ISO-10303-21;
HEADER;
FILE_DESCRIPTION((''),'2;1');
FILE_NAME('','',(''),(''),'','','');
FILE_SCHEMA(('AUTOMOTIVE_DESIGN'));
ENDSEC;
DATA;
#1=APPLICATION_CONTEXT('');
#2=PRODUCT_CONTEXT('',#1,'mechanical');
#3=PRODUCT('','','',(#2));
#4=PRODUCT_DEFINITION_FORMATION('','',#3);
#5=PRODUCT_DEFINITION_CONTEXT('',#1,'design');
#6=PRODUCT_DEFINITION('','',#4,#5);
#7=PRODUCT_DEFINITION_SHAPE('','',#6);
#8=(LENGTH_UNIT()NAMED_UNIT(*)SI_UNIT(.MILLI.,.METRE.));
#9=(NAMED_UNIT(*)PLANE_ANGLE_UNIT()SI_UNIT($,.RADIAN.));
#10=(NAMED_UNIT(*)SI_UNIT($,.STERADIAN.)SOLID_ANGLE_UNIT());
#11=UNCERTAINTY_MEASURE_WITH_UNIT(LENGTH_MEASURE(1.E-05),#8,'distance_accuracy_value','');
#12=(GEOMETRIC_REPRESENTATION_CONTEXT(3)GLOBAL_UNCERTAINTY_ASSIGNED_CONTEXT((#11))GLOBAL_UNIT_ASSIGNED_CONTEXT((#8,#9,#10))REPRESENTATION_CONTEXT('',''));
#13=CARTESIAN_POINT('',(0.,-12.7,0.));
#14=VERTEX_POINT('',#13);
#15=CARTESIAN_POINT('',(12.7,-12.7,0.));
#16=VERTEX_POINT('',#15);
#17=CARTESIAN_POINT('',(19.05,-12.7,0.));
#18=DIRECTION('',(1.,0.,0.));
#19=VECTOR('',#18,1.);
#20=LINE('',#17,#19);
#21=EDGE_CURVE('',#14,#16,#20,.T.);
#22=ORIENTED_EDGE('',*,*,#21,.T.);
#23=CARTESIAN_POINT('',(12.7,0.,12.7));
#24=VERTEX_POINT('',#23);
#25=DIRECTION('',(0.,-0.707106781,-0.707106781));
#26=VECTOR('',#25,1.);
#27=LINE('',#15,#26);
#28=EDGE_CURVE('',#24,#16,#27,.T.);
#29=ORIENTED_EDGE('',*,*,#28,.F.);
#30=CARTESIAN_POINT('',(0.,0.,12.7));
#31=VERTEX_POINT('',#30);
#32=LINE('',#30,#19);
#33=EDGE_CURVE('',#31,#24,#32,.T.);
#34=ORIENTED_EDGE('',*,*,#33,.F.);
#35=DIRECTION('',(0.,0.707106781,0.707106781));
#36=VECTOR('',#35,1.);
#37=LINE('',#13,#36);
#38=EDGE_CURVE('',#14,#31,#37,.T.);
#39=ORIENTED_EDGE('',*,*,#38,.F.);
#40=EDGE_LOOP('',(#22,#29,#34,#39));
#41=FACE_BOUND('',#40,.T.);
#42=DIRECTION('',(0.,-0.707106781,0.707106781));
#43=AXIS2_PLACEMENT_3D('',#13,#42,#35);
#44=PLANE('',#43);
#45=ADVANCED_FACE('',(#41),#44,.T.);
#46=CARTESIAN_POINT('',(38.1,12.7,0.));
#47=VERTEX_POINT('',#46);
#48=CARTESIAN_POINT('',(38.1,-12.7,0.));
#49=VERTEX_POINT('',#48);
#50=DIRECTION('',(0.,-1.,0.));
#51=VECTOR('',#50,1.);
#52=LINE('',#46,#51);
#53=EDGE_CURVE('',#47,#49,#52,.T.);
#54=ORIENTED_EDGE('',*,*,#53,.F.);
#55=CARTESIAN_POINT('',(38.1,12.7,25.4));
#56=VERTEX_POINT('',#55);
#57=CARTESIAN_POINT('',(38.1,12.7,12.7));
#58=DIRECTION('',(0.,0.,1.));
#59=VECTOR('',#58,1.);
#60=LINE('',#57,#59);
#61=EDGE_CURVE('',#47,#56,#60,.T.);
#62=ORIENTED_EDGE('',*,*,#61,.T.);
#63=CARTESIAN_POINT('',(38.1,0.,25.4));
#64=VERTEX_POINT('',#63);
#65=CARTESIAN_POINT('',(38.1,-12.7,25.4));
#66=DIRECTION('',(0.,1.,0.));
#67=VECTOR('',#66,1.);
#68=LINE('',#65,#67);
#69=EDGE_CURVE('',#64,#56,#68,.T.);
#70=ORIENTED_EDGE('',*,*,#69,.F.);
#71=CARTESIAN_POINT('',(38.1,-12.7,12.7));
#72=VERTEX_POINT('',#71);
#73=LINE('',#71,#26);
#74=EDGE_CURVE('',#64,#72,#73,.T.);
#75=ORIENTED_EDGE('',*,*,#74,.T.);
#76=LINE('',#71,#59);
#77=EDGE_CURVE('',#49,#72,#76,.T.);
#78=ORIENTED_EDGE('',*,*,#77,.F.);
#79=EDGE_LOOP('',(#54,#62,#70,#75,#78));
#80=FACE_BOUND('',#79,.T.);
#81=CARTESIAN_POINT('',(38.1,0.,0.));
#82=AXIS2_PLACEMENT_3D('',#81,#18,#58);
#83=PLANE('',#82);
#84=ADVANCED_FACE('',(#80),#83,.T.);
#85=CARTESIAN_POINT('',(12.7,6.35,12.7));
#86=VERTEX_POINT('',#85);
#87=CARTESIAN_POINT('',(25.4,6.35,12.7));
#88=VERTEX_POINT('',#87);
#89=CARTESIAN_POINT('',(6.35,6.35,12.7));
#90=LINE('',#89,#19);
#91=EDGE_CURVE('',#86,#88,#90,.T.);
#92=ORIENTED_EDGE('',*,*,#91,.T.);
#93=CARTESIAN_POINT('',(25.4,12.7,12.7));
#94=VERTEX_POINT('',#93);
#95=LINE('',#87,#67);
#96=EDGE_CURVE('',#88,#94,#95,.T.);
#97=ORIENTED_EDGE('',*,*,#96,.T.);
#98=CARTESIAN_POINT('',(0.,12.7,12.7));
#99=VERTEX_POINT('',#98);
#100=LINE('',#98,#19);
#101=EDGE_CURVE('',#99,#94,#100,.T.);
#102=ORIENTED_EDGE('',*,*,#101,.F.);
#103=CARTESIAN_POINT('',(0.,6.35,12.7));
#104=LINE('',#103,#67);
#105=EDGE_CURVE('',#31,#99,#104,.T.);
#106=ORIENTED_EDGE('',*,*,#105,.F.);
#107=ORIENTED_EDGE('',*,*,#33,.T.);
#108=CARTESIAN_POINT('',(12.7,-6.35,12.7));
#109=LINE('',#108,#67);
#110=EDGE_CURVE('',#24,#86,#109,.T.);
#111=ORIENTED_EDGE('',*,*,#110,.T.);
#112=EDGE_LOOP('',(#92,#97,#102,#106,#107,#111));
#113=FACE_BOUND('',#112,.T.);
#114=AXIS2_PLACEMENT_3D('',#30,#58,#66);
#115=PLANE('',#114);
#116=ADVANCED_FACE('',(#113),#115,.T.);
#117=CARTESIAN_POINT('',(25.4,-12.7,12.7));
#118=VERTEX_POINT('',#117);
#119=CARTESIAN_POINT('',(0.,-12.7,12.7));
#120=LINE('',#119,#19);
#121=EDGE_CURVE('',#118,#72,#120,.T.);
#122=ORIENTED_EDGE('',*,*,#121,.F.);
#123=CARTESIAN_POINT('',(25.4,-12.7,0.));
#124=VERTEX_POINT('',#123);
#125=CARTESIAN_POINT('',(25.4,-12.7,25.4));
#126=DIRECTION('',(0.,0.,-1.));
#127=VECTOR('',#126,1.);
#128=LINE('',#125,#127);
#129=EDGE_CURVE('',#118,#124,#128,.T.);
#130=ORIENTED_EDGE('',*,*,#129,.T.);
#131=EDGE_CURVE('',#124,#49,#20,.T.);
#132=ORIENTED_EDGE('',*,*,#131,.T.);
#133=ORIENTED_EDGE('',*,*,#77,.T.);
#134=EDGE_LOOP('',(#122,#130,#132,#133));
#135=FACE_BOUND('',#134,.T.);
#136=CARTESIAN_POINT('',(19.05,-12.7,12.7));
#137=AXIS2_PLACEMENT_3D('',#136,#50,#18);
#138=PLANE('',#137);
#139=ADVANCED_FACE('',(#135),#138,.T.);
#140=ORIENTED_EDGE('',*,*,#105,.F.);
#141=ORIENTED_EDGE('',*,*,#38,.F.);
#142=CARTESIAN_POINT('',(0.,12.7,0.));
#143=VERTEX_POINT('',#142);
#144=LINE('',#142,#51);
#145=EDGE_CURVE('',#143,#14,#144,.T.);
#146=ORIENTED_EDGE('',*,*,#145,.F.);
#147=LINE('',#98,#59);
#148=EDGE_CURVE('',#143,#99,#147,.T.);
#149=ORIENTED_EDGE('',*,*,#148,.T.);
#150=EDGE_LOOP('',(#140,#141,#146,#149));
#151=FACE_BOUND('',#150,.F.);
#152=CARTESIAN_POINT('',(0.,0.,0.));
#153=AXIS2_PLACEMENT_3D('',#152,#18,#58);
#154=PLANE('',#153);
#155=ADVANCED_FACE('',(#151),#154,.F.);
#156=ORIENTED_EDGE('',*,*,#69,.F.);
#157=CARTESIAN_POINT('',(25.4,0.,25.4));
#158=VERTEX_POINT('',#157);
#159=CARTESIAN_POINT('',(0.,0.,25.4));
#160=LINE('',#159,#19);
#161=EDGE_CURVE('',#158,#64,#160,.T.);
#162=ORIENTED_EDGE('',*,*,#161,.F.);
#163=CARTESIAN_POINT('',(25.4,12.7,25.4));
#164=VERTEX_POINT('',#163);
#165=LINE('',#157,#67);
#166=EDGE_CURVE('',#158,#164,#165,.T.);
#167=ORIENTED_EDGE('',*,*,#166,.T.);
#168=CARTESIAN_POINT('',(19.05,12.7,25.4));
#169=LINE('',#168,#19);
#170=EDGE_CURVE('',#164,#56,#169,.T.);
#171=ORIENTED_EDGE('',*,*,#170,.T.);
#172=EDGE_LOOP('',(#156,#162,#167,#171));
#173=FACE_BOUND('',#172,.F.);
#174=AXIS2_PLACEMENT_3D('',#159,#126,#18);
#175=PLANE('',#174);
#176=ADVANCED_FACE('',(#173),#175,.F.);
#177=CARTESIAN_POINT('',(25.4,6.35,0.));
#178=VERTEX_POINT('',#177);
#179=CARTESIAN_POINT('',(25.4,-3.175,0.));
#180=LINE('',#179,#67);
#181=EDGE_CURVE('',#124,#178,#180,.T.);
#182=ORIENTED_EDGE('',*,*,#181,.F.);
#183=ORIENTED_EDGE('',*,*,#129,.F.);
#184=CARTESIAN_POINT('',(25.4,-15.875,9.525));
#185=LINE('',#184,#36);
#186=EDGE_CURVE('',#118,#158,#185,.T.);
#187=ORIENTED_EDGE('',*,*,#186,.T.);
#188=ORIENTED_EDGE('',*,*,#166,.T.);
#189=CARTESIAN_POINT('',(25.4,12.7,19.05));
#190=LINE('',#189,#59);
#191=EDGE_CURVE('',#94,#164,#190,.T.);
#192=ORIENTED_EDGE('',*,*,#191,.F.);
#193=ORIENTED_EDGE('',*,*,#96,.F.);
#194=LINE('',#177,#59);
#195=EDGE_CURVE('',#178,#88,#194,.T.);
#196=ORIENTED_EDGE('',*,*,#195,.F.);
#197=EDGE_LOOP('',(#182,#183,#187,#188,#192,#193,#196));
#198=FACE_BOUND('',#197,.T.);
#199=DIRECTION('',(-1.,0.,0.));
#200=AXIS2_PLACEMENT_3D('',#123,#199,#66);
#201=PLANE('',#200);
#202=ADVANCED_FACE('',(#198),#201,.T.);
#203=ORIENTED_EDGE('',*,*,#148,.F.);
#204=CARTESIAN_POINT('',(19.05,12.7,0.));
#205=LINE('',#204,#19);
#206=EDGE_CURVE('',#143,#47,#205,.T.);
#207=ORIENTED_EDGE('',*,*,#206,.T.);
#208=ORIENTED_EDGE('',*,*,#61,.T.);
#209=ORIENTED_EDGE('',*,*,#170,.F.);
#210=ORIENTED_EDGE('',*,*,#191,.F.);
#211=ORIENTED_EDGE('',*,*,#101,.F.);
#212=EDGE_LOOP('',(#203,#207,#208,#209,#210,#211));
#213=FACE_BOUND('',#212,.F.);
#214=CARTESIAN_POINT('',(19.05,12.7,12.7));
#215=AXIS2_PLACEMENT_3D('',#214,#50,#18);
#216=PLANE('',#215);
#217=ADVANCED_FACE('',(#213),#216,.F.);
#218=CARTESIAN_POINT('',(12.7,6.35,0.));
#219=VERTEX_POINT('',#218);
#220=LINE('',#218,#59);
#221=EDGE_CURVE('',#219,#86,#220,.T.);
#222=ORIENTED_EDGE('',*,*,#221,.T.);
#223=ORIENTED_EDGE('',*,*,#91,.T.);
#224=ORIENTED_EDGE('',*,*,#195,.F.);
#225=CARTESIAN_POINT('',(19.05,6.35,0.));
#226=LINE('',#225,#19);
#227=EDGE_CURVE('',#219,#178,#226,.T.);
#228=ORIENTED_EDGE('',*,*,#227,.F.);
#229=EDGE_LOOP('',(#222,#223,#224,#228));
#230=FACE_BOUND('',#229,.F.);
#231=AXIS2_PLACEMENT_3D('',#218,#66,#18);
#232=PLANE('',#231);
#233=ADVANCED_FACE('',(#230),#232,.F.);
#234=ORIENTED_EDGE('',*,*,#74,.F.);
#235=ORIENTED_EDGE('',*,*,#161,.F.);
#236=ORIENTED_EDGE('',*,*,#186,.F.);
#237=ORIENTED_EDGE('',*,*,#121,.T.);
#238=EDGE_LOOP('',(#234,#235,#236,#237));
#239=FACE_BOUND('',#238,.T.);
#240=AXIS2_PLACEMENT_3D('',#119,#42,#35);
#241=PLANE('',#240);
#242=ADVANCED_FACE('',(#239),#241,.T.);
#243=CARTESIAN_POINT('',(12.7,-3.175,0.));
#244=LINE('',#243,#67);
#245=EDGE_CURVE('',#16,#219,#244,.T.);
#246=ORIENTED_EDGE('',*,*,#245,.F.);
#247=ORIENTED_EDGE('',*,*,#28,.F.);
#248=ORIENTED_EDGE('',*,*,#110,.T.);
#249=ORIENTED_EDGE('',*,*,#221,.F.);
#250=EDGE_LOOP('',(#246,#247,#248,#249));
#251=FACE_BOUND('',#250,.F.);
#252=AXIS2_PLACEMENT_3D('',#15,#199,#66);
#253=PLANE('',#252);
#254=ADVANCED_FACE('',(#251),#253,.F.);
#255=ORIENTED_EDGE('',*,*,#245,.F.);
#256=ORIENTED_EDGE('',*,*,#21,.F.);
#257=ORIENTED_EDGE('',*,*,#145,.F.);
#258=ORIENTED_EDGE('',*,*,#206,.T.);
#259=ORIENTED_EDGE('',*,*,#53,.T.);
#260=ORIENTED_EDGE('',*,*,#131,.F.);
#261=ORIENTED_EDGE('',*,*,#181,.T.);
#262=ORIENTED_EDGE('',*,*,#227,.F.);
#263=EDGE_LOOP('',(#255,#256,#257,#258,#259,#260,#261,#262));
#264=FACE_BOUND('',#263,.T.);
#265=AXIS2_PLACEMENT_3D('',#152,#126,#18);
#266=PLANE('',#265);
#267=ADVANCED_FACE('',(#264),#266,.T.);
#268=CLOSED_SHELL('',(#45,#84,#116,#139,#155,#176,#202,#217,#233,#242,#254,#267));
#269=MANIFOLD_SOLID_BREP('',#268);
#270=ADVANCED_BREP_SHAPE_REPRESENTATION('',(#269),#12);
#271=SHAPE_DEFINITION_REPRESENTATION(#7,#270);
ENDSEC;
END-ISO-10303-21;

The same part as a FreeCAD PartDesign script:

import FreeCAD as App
import Part
import Sketcher
from FreeCAD import Vector
Q = App.Units.Quantity

doc = App.newDocument("Part")
body = doc.addObject("PartDesign::Body", "Body")

# Sketch on XZ plane
sketch1 = body.newObject("Sketcher::SketchObject", "Sketch")
sketch1.AttachmentSupport = (doc.getObject("XZ_Plane"), [""])
sketch1.MapMode = "FlatFace"
sketch1.addGeometry([
    Part.LineSegment(Vector(0, 25, 0), Vector(0, 0, 0)),
    Part.LineSegment(Vector(0, 0, 0), Vector(38, 0, 0)),
    Part.LineSegment(Vector(38, 0, 0), Vector(38, 25, 0)),
    Part.LineSegment(Vector(38, 25, 0), Vector(0, 25, 0)),
], False)
sketch1.addConstraint([
    Sketcher.Constraint("Coincident", 0, 2, 1, 1),
    Sketcher.Constraint("Coincident", 1, 2, 2, 1),
    Sketcher.Constraint("Coincident", 2, 2, 3, 1),
    Sketcher.Constraint("Coincident", 3, 2, 0, 1),
    Sketcher.Constraint("Vertical", 0),
    Sketcher.Constraint("Horizontal", 1),
    Sketcher.Constraint("Vertical", 2),
    Sketcher.Constraint("Horizontal", 3),
    Sketcher.Constraint("Coincident", 0, 2, -1, 1),
    Sketcher.Constraint("DistanceY", 0, 2, 0, 1, Q("1 in")),
    Sketcher.Constraint("DistanceX", 1, 1, 1, 2, Q("1.5 in")),
])
pad1 = body.newObject("PartDesign::Pad", "Pad")
pad1.Profile = sketch1
pad1.Length = Q("1 in")
pad1.Midplane = True

# Sketch on YZ plane
sketch2 = body.newObject("Sketcher::SketchObject", "Sketch001")
sketch2.AttachmentSupport = (doc.getObject("YZ_Plane"), [""])
sketch2.MapMode = "FlatFace"
sketch2.addGeometry([
    Part.LineSegment(Vector(0, 13, 0), Vector(0, 25, 0)),
    Part.LineSegment(Vector(0, 25, 0), Vector(-13, 25, 0)),
    Part.LineSegment(Vector(-13, 25, 0), Vector(-13, 0, 0)),
    Part.LineSegment(Vector(-13, 0, 0), Vector(0, 13, 0)),
], False)
sketch2.addConstraint([
    Sketcher.Constraint("Coincident", 0, 2, 1, 1),
    Sketcher.Constraint("Coincident", 1, 2, 2, 1),
    Sketcher.Constraint("Coincident", 2, 2, 3, 1),
    Sketcher.Constraint("Coincident", 3, 2, 0, 1),
    Sketcher.Constraint("Vertical", 0),
    Sketcher.Constraint("Horizontal", 1),
    Sketcher.Constraint("Vertical", 2),
    Sketcher.Constraint("PointOnObject", 0, 2, -2),
    Sketcher.Constraint("PointOnObject", 2, 2, -1),
    Sketcher.Constraint("Equal", 1, 0),
    Sketcher.Constraint("DistanceY", 2, 2, 2, 1, Q("1 in")),
    Sketcher.Constraint("DistanceX", 1, 2, 1, 1, Q("0.5 in")),
])
pocket1 = body.newObject("PartDesign::Pocket", "Pocket")
pocket1.Profile = sketch2
pocket1.Length = Q("1 in")
pocket1.Reversed = True

# Sketch on XY plane
sketch3 = body.newObject("Sketcher::SketchObject", "Sketch002")
sketch3.AttachmentSupport = (doc.getObject("XY_Plane"), [""])
sketch3.MapMode = "FlatFace"
sketch3.addGeometry([
    Part.LineSegment(Vector(13, 6, 0), Vector(13, -13, 0)),
    Part.LineSegment(Vector(13, -13, 0), Vector(25, -13, 0)),
    Part.LineSegment(Vector(25, -13, 0), Vector(25, 6, 0)),
    Part.LineSegment(Vector(25, 6, 0), Vector(13, 6, 0)),
], False)
sketch3.addConstraint([
    Sketcher.Constraint("Coincident", 0, 2, 1, 1),
    Sketcher.Constraint("Coincident", 1, 2, 2, 1),
    Sketcher.Constraint("Coincident", 2, 2, 3, 1),
    Sketcher.Constraint("Coincident", 3, 2, 0, 1),
    Sketcher.Constraint("Vertical", 0),
    Sketcher.Constraint("Horizontal", 1),
    Sketcher.Constraint("Vertical", 2),
    Sketcher.Constraint("Horizontal", 3),
    Sketcher.Constraint("DistanceX", 1, 1, 1, 2, Q("0.5 in")),
    Sketcher.Constraint("DistanceX", -1, 1, 1, 2, Q("1 in")),
    Sketcher.Constraint("DistanceY", 0, 2, 0, 1, Q("0.75 in")),
    Sketcher.Constraint("DistanceY", 0, 2, -1, 1, Q("0.5 in")),
])
pocket2 = body.newObject("PartDesign::Pocket", "Pocket001")
pocket2.Profile = sketch3
pocket2.Length = Q("1.83 in")
pocket2.Reversed = True

# Sketch on YZ plane
sketch4 = body.newObject("Sketcher::SketchObject", "Sketch003")
sketch4.AttachmentSupport = (doc.getObject("YZ_Plane"), [""])
sketch4.MapMode = "FlatFace"
sketch4.addGeometry([
    Part.LineSegment(Vector(-13, 13, 0), Vector(0, 25, 0)),
    Part.LineSegment(Vector(0, 25, 0), Vector(-13, 25, 0)),
    Part.LineSegment(Vector(-13, 25, 0), Vector(-13, 13, 0)),
], False)
sketch4.addConstraint([
    Sketcher.Constraint("Coincident", 0, 2, 1, 1),
    Sketcher.Constraint("Coincident", 1, 2, 2, 1),
    Sketcher.Constraint("Coincident", 2, 2, 0, 1),
    Sketcher.Constraint("Horizontal", 1),
    Sketcher.Constraint("Vertical", 2),
    Sketcher.Constraint("PointOnObject", 0, 2, -2),
    Sketcher.Constraint("Equal", 1, 2),
    Sketcher.Constraint("DistanceX", 1, 2, 1, 1, Q("0.5 in")),
    Sketcher.Constraint("DistanceY", -1, 1, 0, 2, Q("1 in")),
])
pocket3 = body.newObject("PartDesign::Pocket", "Pocket002")
pocket3.Profile = sketch4
pocket3.Length = Q("3.11 in")
pocket3.Reversed = True

# Sketch on YZ plane
sketch5 = body.newObject("Sketcher::SketchObject", "Sketch004")
sketch5.AttachmentSupport = (doc.getObject("YZ_Plane"), [""])
sketch5.MapMode = "FlatFace"
sketch5.addGeometry([
    Part.LineSegment(Vector(0, 25, 0), Vector(0, 13, 0)),
    Part.LineSegment(Vector(0, 13, 0), Vector(13, 13, 0)),
    Part.LineSegment(Vector(13, 13, 0), Vector(13, 25, 0)),
    Part.LineSegment(Vector(13, 25, 0), Vector(0, 25, 0)),
], False)
sketch5.addConstraint([
    Sketcher.Constraint("Coincident", 0, 2, 1, 1),
    Sketcher.Constraint("Coincident", 1, 2, 2, 1),
    Sketcher.Constraint("Coincident", 2, 2, 3, 1),
    Sketcher.Constraint("Coincident", 3, 2, 0, 1),
    Sketcher.Constraint("Vertical", 0),
    Sketcher.Constraint("Horizontal", 1),
    Sketcher.Constraint("Vertical", 2),
    Sketcher.Constraint("Horizontal", 3),
    Sketcher.Constraint("PointOnObject", 0, 2, -2),
    Sketcher.Constraint("Equal", 3, 0),
    Sketcher.Constraint("DistanceX", 1, 1, 1, 2, Q("0.5 in")),
    Sketcher.Constraint("DistanceY", -1, 1, 2, 2, Q("1 in")),
])
pocket4 = body.newObject("PartDesign::Pocket", "Pocket003")
pocket4.Profile = sketch5
pocket4.Length = Q("1 in")
pocket4.Reversed = True

doc.recompute()
